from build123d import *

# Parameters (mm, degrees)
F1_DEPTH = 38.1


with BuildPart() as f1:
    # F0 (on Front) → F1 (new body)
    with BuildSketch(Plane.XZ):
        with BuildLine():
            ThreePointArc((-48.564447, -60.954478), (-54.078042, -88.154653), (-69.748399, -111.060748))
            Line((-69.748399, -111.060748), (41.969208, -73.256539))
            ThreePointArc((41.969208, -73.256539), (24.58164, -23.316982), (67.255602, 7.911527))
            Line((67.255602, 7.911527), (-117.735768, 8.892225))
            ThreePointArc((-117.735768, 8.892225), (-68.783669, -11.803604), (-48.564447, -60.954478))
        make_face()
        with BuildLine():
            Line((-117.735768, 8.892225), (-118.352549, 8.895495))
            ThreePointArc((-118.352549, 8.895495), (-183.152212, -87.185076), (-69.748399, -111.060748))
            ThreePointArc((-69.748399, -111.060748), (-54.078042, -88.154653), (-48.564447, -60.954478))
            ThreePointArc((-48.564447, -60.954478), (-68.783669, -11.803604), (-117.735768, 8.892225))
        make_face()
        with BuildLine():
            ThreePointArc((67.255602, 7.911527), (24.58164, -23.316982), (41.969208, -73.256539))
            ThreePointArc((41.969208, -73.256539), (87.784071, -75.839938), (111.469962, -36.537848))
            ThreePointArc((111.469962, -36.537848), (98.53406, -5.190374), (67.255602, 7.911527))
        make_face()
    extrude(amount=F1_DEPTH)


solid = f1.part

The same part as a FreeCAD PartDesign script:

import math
import FreeCAD as App
import Part
import Sketcher

V = App.Vector
Q = App.Units.Quantity

doc = App.newDocument("Part")
body = doc.addObject("PartDesign::Body", "Body")

# Sketch on XZ plane
sketch1 = body.newObject("Sketcher::SketchObject", "Sketch")
sketch1.AttachmentSupport = (doc.getObject("XZ_Plane"), [""])
sketch1.MapMode = "FlatFace"
sketch1.addGeometry([
    Part.LineSegment(V(-69.7, -111.1, 0), V(42, -73.3, 0)),  # 0
    Part.ArcOfCircle(Part.Circle(V(67, -36.5, 0), V(0, 0, 1), 44.5), math.radians(-124), math.radians(0)),  # 1
    Part.ArcOfCircle(Part.Circle(V(67, -36.5, 0), V(0, 0, 1), 44.4), math.radians(0), math.radians(90)),  # 2
    Part.LineSegment(V(67.3, 7.9, 0), V(-117.7, 8.9, 0)),  # 3
    Part.LineSegment(V(-117.7, 8.9, 0), V(-118.4, 8.9, 0)),  # 4
    Part.ArcOfCircle(Part.Circle(V(-118.4, -61, 0), V(0, 0, 1), 69.9), math.radians(90), math.radians(314)),  # 5
], False)
sketch1.addConstraint([
    Sketcher.Constraint("Coincident", 0, 2, 1, 1),
    Sketcher.Constraint("Tangent", 1, 2, 2, 1),
    Sketcher.Constraint("Tangent", 2, 2, 3, 1),
    Sketcher.Constraint("Coincident", 3, 2, 4, 1),
    Sketcher.Constraint("Coincident", 4, 2, 5, 1),
    Sketcher.Constraint("Coincident", 5, 2, 0, 1),
    Sketcher.Constraint("Equal", 1, 2),
    Sketcher.Constraint("Parallel", 3, 4),
    Sketcher.Constraint("Horizontal", 2, 3, 1, 2),
    Sketcher.Constraint("Radius", 1, Q("1.75 in")),
    Sketcher.Constraint("Radius", 5, Q("2.75 in")),
    Sketcher.Constraint("DistanceX", 5, 2, -1, 1, Q("2.746 in")),
    Sketcher.Constraint("DistanceX", -1, 1, 2, 2, 67.255602),
    Sketcher.Constraint("DistanceY", 2, 2, 3, 2, 0.980698),
    Sketcher.Constraint("DistanceY", 5, 2, 1, 3, 74.5229),
    Sketcher.Constraint("Distance", 3, 184.993969),
    Sketcher.Constraint("Distance", 4, 0.61679),
    Sketcher.Constraint("DistanceX", -1, 1, 0, 2, 41.969208),
    Sketcher.Constraint("DistanceY", 0, 2, -1, 1, 73.256539),
])
pad1 = body.newObject("PartDesign::Pad", "Pad")
pad1.Profile = sketch1
pad1.Length = Q("1.5 in")

doc.recompute()
